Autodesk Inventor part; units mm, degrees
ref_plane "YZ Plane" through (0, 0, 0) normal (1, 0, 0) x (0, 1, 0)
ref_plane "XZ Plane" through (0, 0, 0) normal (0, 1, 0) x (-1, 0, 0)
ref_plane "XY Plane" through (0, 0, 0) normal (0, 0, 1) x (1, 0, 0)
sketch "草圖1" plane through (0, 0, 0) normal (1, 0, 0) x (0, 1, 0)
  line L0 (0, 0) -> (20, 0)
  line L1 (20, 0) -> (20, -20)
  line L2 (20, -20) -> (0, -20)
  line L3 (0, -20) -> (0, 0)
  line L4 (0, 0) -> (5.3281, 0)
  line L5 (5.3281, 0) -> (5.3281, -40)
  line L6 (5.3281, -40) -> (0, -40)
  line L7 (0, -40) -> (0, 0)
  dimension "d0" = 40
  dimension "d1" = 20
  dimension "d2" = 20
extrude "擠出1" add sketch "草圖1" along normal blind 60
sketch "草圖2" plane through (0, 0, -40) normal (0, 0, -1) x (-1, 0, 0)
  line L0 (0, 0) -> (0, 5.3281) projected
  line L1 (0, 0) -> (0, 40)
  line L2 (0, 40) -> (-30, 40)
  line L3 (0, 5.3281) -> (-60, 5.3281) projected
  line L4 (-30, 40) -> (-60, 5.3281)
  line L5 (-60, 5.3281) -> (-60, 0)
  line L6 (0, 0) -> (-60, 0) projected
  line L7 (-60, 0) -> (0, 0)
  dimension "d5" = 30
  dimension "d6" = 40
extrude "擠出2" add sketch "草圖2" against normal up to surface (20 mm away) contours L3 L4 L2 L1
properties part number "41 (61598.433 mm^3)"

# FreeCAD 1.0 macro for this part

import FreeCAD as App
import Part
import Sketcher
from FreeCAD import Vector
Q = App.Units.Quantity


def add_polygon(sketch, points):
    """Adds a closed chain of lines whose ends are joined by coincident constraints."""
    first, n = sketch.GeometryCount, len(points)
    for a, b in zip(points, points[1:] + points[:1]):
        sketch.addGeometry(Part.LineSegment(App.Vector(*a, 0), App.Vector(*b, 0)), False)
    for i in range(n):
        sketch.addConstraint(Sketcher.Constraint("Coincident", first + i, 2, first + (i + 1) % n, 1))

doc = App.newDocument("Part")
body = doc.addObject("PartDesign::Body", "Body")

sketch1 = doc.addObject("Sketcher::SketchObject", "Sketch")
body.addObject(sketch1)
sketch1.AttachmentSupport = (doc.YZ_Plane, [""])
sketch1.MapMode = "FlatFace"
add_polygon(sketch1, [(0, 0), (0, -40), (5, -40), (5, -20), (20, -20), (20, 0)])
sketch1.addConstraint(Sketcher.Constraint("Vertical", 0))
sketch1.addConstraint(Sketcher.Constraint("Horizontal", 1))
sketch1.addConstraint(Sketcher.Constraint("Vertical", 2))
sketch1.addConstraint(Sketcher.Constraint("Horizontal", 3))
sketch1.addConstraint(Sketcher.Constraint("Vertical", 4))
sketch1.addConstraint(Sketcher.Constraint("Horizontal", 5))
sketch1.addConstraint(Sketcher.Constraint("Coincident", 5, 2, -1, 1))
sketch1.addConstraint(Sketcher.Constraint("Equal", 5, 2))
sketch1.addConstraint(Sketcher.Constraint("Equal", 2, 4))
sketch1.addConstraint(Sketcher.Constraint("DistanceX", 5, 2, 5, 1, Q("20 mm")))
sketch1.addConstraint(Sketcher.Constraint("DistanceX", 1, 1, 1, 2, Q("5.328 mm")))
pad1 = doc.addObject("PartDesign::Pad", "Pad")
body.addObject(pad1)
pad1.Profile = sketch1
pad1.Length = 60

sketch2 = doc.addObject("Sketcher::SketchObject", "Sketch001")
body.addObject(sketch2)
sketch2.AttachmentSupport = (doc.XY_Plane, [""])
sketch2.MapMode = "FlatFace"
sketch2.AttachmentOffset = App.Placement(Vector(0, 0, -40), App.Rotation())
add_polygon(sketch2, [(60, 5), (0, 5), (0, 40), (30, 40)])
sketch2.addConstraint(Sketcher.Constraint("Horizontal", 0))
sketch2.addConstraint(Sketcher.Constraint("Vertical", 1))
sketch2.addConstraint(Sketcher.Constraint("Horizontal", 2))
sketch2.addConstraint(Sketcher.Constraint("PointOnObject", 0, 2, -2))
sketch2.addConstraint(Sketcher.Constraint("DistanceX", 2, 1, 2, 2, Q("30 mm")))
sketch2.addConstraint(Sketcher.Constraint("DistanceY", -1, 1, 1, 2, Q("40 mm")))
sketch2.addConstraint(Sketcher.Constraint("DistanceX", 2, 2, 3, 2, Q("30 mm")))
sketch2.addConstraint(Sketcher.Constraint("DistanceY", 1, 1, 1, 2, Q("34.672 mm")))
pad2 = doc.addObject("PartDesign::Pad", "Pad001")
body.addObject(pad2)
pad2.Profile = sketch2
pad2.Length = 20

doc.recompute()
